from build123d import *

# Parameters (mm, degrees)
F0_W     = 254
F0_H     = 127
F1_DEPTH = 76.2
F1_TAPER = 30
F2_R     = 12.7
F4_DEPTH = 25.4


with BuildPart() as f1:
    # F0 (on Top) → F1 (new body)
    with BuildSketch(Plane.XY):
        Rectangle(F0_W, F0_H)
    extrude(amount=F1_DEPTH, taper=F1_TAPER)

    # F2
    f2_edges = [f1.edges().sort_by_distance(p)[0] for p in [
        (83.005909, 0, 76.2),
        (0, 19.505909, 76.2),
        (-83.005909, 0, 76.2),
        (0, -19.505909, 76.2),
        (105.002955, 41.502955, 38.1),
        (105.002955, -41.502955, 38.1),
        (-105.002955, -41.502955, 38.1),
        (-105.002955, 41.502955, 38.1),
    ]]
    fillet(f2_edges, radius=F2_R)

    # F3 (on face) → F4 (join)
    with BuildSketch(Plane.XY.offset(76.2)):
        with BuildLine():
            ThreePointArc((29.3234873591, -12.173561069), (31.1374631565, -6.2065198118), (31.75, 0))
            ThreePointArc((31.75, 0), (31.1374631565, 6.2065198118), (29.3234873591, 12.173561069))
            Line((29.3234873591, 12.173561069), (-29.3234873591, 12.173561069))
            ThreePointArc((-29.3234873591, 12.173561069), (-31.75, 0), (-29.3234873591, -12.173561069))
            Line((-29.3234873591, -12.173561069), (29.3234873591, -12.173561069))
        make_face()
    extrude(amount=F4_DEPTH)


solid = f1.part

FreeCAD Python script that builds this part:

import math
import FreeCAD as App
import Part
import Sketcher
Q = App.Units.Quantity


def edges_at(feature, points):
    """Names of the edges that pass closest to the given points."""
    edges = feature.Shape.Edges
    near = lambda p: min(range(len(edges)), key=lambda i: edges[i].distToShape(Part.Vertex(*p))[0])
    return sorted({f"Edge{near(p) + 1}" for p in points})

doc = App.newDocument("Part")
params = doc.addObject("Spreadsheet::Sheet", "Params")
for row, (alias, value) in enumerate([
    ("sketch1_width", "10 in"),
    ("sketch1_height", "5 in"),
    ("pad1_length", "3 in"),
    ("pad1_taper", "-30 deg"),
    ("fillet_radius", "0.5 in"),
    ("sketch2_radius", "1.25 in"),
    ("pad2_length", "1 in"),
], start=1):
    params.set(f"A{row}", alias)
    params.set(f"B{row}", "=" + value)
    params.setAlias(f"B{row}", alias)

body = doc.addObject("PartDesign::Body", "Body")

# Sketch on XY plane
sketch1 = body.newObject("Sketcher::SketchObject", "Sketch")
sketch1.AttachmentSupport = (doc.getObject("XY_Plane"), [""])
sketch1.MapMode = "FlatFace"
sketch1.addGeometry(Part.LineSegment(App.Vector(-127, 64, 0), App.Vector(-127, -64, 0)), False)
sketch1.addGeometry(Part.LineSegment(App.Vector(-127, -64, 0), App.Vector(127, -64, 0)), False)
sketch1.addGeometry(Part.LineSegment(App.Vector(127, -64, 0), App.Vector(127, 64, 0)), False)
sketch1.addGeometry(Part.LineSegment(App.Vector(127, 64, 0), App.Vector(-127, 64, 0)), False)
sketch1.addConstraint(Sketcher.Constraint("Coincident", 0, 2, 1, 1))
sketch1.addConstraint(Sketcher.Constraint("Coincident", 1, 2, 2, 1))
sketch1.addConstraint(Sketcher.Constraint("Coincident", 2, 2, 3, 1))
sketch1.addConstraint(Sketcher.Constraint("Coincident", 3, 2, 0, 1))
sketch1.addConstraint(Sketcher.Constraint("Vertical", 0))
sketch1.addConstraint(Sketcher.Constraint("Horizontal", 1))
sketch1.addConstraint(Sketcher.Constraint("Vertical", 2))
sketch1.addConstraint(Sketcher.Constraint("Horizontal", 3))
sketch1.addConstraint(Sketcher.Constraint("Symmetric", 0, 2, 2, 2, -1, 1))
sketch1.addConstraint(Sketcher.Constraint("DistanceX", 1, 1, 1, 2, Q("10 in")))
sketch1.addConstraint(Sketcher.Constraint("DistanceY", 0, 2, 0, 1, Q("5 in")))
sketch1.setExpression("Constraints[9]", "Params.sketch1_width")
sketch1.setExpression("Constraints[10]", "Params.sketch1_height")
pad1 = body.newObject("PartDesign::Pad", "Pad")
pad1.Profile = sketch1
pad1.setExpression("Length", "Params.pad1_length")
pad1.setExpression("TaperAngle", "Params.pad1_taper")
doc.recompute()

fillet = body.newObject("PartDesign::Fillet", "Fillet")
fillet.Base = (pad1, edges_at(pad1, [
    (83.006, 0, 76.2),
    (0, 19.506, 76.2),
    (-83.006, 0, 76.2),
    (0, -19.506, 76.2),
    (105.003, 41.503, 38.1),
    (105.003, -41.503, 38.1),
    (-105.003, -41.503, 38.1),
    (-105.003, 41.503, 38.1),
]))
fillet.setExpression("Radius", "Params.fillet_radius")

# Sketch on XY plane
sketch2 = body.newObject("Sketcher::SketchObject", "Sketch001")
sketch2.AttachmentSupport = (doc.getObject("XY_Plane"), [""])
sketch2.MapMode = "FlatFace"
sketch2.AttachmentOffset = App.Placement(App.Vector(0, 0, 3 * 25.4), App.Rotation())
sketch2.addGeometry(Part.ArcOfCircle(Part.Circle(App.Vector(0, 0, 0), App.Vector(0, 0, 1), 32), math.radians(-23), math.radians(0)), False)
sketch2.addGeometry(Part.ArcOfCircle(Part.Circle(App.Vector(0, 0, 0), App.Vector(0, 0, 1), 32), math.radians(0), math.radians(23)), False)
sketch2.addGeometry(Part.LineSegment(App.Vector(29, 12, 0), App.Vector(-29, 12, 0)), False)
sketch2.addGeometry(Part.ArcOfCircle(Part.Circle(App.Vector(0, 0, 0), App.Vector(0, 0, 1), 32), math.radians(157), math.radians(203)), False)
sketch2.addGeometry(Part.LineSegment(App.Vector(-29, -12, 0), App.Vector(29, -12, 0)), False)
sketch2.addConstraint(Sketcher.Constraint("Tangent", 0, 2, 1, 1))
sketch2.addConstraint(Sketcher.Constraint("Coincident", 1, 2, 2, 1))
sketch2.addConstraint(Sketcher.Constraint("Coincident", 2, 2, 3, 1))
sketch2.addConstraint(Sketcher.Constraint("Coincident", 3, 2, 4, 1))
sketch2.addConstraint(Sketcher.Constraint("Coincident", 4, 2, 0, 1))
sketch2.addConstraint(Sketcher.Constraint("Horizontal", 2))
sketch2.addConstraint(Sketcher.Constraint("Horizontal", 4))
sketch2.addConstraint(Sketcher.Constraint("Coincident", 0, 3, -1, 1))
sketch2.addConstraint(Sketcher.Constraint("Coincident", 3, 3, -1, 1))
sketch2.addConstraint(Sketcher.Constraint("Equal", 0, 1))
sketch2.addConstraint(Sketcher.Constraint("Equal", 1, 3))
sketch2.addConstraint(Sketcher.Constraint("PointOnObject", 0, 2, -1))
sketch2.addConstraint(Sketcher.Constraint("Vertical", 2, 2, 3, 2))
sketch2.addConstraint(Sketcher.Constraint("Radius", 0, Q("1.25 in")))
sketch2.addConstraint(Sketcher.Constraint("DistanceX", 2, 2, 2, 1, Q("58.646975 mm")))
sketch2.setExpression("Constraints[13]", "Params.sketch2_radius")
pad2 = body.newObject("PartDesign::Pad", "Pad001")
pad2.Profile = sketch2
pad2.setExpression("Length", "Params.pad2_length")

doc.recompute()
